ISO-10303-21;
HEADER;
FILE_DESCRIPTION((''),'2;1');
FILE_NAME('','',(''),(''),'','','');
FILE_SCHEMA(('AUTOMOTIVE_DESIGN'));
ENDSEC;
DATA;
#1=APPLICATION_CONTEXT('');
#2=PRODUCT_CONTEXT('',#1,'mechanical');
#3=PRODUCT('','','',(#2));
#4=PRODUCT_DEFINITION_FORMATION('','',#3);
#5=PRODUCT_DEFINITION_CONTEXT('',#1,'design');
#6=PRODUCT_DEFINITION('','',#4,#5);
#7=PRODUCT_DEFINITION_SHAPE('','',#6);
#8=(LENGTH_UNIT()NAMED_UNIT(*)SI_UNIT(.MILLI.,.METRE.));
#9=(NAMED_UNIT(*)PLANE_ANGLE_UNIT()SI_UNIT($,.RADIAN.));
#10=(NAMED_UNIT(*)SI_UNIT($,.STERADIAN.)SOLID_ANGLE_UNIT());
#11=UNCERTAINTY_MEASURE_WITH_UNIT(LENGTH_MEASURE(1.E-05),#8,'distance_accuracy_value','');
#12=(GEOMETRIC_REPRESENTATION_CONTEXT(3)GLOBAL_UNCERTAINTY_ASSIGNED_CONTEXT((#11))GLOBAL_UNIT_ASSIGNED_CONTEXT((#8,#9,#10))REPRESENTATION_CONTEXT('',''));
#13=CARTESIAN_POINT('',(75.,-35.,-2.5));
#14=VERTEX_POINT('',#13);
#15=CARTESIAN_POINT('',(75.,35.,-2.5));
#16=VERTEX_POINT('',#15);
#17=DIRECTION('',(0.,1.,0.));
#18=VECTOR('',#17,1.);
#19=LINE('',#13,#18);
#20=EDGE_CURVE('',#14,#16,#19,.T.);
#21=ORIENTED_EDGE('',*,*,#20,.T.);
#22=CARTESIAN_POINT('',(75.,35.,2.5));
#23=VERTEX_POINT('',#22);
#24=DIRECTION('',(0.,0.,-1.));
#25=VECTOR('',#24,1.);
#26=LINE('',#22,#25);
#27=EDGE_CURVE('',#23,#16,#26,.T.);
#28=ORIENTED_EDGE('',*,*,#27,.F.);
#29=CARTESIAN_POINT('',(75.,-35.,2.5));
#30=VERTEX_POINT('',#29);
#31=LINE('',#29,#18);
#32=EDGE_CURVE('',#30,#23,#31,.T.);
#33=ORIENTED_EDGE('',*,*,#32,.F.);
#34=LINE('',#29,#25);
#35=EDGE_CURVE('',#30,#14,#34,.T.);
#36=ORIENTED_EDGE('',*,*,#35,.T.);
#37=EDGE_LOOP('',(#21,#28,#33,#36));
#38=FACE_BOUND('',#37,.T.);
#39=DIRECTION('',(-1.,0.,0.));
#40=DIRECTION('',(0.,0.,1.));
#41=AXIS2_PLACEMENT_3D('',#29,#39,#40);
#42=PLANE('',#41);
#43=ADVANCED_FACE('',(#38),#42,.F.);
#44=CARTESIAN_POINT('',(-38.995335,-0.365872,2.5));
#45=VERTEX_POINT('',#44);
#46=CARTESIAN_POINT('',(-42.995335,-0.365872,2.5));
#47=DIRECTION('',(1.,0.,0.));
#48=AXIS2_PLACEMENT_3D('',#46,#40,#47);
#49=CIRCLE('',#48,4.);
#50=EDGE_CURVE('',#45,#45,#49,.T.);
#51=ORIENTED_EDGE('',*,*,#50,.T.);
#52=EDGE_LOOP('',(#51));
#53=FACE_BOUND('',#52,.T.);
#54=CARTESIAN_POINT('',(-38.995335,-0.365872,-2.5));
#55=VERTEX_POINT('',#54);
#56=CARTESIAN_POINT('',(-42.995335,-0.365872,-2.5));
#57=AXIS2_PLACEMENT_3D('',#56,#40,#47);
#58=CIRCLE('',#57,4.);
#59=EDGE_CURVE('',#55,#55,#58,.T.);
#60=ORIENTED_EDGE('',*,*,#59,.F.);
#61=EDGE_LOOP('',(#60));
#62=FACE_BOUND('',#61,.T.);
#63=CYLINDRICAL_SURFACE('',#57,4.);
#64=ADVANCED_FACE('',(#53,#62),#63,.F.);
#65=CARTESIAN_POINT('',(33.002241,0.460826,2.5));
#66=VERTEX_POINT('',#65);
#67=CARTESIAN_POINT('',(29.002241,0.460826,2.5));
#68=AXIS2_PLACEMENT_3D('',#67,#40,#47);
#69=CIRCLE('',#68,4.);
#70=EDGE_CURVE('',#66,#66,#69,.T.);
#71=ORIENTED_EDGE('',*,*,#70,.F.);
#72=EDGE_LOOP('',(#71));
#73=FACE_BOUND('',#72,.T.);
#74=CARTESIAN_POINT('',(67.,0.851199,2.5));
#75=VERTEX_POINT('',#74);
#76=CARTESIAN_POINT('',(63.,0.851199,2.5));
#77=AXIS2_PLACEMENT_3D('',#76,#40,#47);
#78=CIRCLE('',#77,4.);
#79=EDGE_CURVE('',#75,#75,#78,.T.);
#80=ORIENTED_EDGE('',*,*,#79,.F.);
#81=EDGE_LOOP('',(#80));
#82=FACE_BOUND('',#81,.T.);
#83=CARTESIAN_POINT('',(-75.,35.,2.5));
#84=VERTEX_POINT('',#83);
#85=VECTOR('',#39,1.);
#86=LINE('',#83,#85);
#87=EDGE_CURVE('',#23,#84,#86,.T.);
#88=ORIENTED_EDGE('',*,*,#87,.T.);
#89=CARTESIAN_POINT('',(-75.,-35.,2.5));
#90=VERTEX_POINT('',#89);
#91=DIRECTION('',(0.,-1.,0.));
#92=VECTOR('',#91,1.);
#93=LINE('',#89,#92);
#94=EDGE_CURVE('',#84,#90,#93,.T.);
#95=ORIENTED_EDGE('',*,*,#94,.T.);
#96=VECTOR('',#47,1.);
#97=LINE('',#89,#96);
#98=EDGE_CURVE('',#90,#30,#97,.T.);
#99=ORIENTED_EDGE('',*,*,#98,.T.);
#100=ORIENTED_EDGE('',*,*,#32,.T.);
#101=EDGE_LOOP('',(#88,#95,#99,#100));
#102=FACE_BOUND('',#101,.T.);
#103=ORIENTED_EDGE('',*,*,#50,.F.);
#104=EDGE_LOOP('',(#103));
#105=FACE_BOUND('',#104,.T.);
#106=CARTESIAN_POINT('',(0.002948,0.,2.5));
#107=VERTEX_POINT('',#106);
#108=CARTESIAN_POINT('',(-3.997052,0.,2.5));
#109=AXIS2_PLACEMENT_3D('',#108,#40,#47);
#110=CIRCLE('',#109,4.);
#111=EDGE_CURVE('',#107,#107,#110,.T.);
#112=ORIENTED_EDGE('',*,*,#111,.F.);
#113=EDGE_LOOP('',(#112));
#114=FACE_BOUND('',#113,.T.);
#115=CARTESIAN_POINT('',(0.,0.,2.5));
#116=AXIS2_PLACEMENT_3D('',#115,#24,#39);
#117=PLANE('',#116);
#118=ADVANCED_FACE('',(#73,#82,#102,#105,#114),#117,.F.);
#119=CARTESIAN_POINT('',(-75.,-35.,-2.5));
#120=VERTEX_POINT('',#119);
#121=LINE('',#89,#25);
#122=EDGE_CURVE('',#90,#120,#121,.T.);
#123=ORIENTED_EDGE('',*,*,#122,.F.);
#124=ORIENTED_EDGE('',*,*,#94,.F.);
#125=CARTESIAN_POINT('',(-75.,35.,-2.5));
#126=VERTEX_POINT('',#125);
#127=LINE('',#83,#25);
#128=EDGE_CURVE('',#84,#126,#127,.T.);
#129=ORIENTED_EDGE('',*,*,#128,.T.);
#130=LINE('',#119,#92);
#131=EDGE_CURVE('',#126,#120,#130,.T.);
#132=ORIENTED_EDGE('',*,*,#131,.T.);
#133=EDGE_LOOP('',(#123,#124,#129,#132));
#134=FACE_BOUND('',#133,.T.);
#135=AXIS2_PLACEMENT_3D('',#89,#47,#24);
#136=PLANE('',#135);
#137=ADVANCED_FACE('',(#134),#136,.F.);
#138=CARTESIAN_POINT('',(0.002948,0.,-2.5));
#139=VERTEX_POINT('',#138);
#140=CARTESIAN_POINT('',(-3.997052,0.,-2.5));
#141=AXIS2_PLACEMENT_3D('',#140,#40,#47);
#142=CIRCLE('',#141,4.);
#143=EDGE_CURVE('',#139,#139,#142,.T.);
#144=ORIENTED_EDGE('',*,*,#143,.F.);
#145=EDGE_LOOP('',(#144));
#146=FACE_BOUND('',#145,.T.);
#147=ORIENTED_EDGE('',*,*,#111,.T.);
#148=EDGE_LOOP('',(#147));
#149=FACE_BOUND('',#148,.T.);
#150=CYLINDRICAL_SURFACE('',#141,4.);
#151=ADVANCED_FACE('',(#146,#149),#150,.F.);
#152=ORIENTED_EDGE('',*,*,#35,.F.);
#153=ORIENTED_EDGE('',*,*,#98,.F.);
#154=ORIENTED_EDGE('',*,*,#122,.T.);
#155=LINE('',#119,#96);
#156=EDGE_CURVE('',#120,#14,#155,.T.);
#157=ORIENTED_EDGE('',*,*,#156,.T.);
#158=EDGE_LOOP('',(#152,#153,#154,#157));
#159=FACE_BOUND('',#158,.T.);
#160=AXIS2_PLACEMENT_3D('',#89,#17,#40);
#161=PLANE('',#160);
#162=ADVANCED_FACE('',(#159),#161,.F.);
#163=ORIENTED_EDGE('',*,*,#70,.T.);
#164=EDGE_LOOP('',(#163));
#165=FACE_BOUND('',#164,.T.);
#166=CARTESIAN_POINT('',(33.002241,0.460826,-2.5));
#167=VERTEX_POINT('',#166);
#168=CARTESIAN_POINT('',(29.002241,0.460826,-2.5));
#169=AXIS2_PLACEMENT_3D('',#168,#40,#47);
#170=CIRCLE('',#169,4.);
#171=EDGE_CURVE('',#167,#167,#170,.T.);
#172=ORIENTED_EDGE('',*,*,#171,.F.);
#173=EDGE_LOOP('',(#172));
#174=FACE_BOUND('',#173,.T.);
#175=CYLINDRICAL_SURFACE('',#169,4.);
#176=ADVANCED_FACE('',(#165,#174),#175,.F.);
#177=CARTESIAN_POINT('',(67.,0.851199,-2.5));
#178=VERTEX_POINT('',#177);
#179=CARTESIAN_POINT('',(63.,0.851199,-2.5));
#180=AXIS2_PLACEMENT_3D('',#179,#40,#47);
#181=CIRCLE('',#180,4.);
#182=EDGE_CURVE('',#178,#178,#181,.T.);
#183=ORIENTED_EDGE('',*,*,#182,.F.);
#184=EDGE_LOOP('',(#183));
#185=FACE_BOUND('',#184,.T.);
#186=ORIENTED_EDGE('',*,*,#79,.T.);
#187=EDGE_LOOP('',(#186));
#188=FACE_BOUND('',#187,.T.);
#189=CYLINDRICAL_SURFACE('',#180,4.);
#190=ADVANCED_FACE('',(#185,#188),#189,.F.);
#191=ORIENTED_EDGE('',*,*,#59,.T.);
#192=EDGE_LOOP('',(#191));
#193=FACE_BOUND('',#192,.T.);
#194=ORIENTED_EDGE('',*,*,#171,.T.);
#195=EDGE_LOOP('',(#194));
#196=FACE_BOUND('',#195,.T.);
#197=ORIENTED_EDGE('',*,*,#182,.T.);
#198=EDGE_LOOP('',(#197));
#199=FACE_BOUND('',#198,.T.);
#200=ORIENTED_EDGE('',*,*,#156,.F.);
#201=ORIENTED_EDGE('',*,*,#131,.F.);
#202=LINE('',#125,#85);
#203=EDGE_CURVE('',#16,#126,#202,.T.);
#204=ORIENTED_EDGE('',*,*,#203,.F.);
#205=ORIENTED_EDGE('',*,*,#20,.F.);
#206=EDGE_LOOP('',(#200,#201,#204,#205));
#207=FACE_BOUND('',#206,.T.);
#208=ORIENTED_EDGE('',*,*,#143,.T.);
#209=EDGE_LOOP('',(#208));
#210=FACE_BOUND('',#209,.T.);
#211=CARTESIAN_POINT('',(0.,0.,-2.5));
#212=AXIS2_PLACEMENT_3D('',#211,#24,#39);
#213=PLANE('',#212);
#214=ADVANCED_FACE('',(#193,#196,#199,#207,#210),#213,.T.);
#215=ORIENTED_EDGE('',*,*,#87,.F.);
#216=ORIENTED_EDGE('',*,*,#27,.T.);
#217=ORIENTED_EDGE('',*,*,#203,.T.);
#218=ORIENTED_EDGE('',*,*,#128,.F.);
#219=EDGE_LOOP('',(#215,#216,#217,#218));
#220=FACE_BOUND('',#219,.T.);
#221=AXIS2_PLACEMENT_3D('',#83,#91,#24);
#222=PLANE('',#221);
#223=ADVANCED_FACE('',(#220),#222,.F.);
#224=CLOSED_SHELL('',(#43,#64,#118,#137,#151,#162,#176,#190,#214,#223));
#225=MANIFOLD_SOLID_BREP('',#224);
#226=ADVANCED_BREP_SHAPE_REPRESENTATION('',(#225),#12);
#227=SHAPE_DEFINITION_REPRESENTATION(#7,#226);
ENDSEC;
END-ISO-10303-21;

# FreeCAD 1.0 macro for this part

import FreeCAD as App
import Part
import Sketcher
Q = App.Units.Quantity

doc = App.newDocument("Part")
body = doc.addObject("PartDesign::Body", "Body")

# Sketch on XY plane
sketch1 = body.newObject("Sketcher::SketchObject", "Sketch")
sketch1.AttachmentSupport = (doc.getObject("XY_Plane"), [""])
sketch1.MapMode = "FlatFace"
sketch1.addGeometry(Part.LineSegment(App.Vector(-75, 35, 0), App.Vector(-75, -35, 0)), False)
sketch1.addGeometry(Part.LineSegment(App.Vector(-75, -35, 0), App.Vector(75, -35, 0)), False)
sketch1.addGeometry(Part.LineSegment(App.Vector(75, -35, 0), App.Vector(75, 35, 0)), False)
sketch1.addGeometry(Part.LineSegment(App.Vector(75, 35, 0), App.Vector(-75, 35, 0)), False)
sketch1.addConstraint(Sketcher.Constraint("Coincident", 0, 2, 1, 1))
sketch1.addConstraint(Sketcher.Constraint("Coincident", 1, 2, 2, 1))
sketch1.addConstraint(Sketcher.Constraint("Coincident", 2, 2, 3, 1))
sketch1.addConstraint(Sketcher.Constraint("Coincident", 3, 2, 0, 1))
sketch1.addConstraint(Sketcher.Constraint("Vertical", 0))
sketch1.addConstraint(Sketcher.Constraint("Horizontal", 1))
sketch1.addConstraint(Sketcher.Constraint("Vertical", 2))
sketch1.addConstraint(Sketcher.Constraint("Horizontal", 3))
sketch1.addConstraint(Sketcher.Constraint("Symmetric", 0, 2, 2, 2, -1, 1))
sketch1.addConstraint(Sketcher.Constraint("DistanceX", 1, 1, 1, 2, Q("150 mm")))
sketch1.addConstraint(Sketcher.Constraint("DistanceY", 0, 2, 0, 1, Q("70 mm")))
pad1 = body.newObject("PartDesign::Pad", "Pad")
pad1.Profile = sketch1
pad1.Length = 5
pad1.Midplane = True

# Sketch on XY plane
sketch2 = body.newObject("Sketcher::SketchObject", "Sketch001")
sketch2.AttachmentSupport = (doc.getObject("XY_Plane"), [""])
sketch2.MapMode = "FlatFace"
sketch2.AttachmentOffset = App.Placement(App.Vector(0, 0, 2.5), App.Rotation())
sketch2.addGeometry(Part.Circle(App.Vector(63, 0.851199, 0), App.Vector(0, 0, 1), 4), False)
sketch2.addGeometry(Part.Circle(App.Vector(29.002241, 0.460826, 0), App.Vector(0, 0, 1), 4), False)
sketch2.addGeometry(Part.Circle(App.Vector(-42.995335, -0.365872, 0), App.Vector(0, 0, 1), 4), False)
sketch2.addGeometry(Part.Circle(App.Vector(-3.997052, 0, 0), App.Vector(0, 0, 1), 4), False)
sketch2.addConstraint(Sketcher.Constraint("Equal", 0, 1))
sketch2.addConstraint(Sketcher.Constraint("Equal", 1, 2))
sketch2.addConstraint(Sketcher.Constraint("Equal", 2, 3))
sketch2.addConstraint(Sketcher.Constraint("PointOnObject", 3, 3, -1))
sketch2.addConstraint(Sketcher.Constraint("Diameter", 0, Q("8 mm")))
sketch2.addConstraint(Sketcher.Constraint("DistanceX", -1, 1, 0, 3, Q("63 mm")))
sketch2.addConstraint(Sketcher.Constraint("DistanceY", -1, 1, 0, 3, Q("0.851199 mm")))
sketch2.addConstraint(Sketcher.Constraint("DistanceY", 2, 3, 1, 3, Q("0.826698 mm")))
sketch2.addConstraint(Sketcher.Constraint("DistanceX", -1, 1, 1, 3, Q("29.002241 mm")))
sketch2.addConstraint(Sketcher.Constraint("DistanceY", 2, 3, -1, 1, Q("0.365872 mm")))
sketch2.addConstraint(Sketcher.Constraint("DistanceX", 3, 3, -1, 1, Q("3.997052 mm")))
sketch2.addConstraint(Sketcher.Constraint("DistanceX", 2, 3, -1, 1, Q("42.995335 mm")))
pocket1 = body.newObject("PartDesign::Pocket", "Pocket")
pocket1.Profile = sketch2
pocket1.Type = "ThroughAll"

doc.recompute()
